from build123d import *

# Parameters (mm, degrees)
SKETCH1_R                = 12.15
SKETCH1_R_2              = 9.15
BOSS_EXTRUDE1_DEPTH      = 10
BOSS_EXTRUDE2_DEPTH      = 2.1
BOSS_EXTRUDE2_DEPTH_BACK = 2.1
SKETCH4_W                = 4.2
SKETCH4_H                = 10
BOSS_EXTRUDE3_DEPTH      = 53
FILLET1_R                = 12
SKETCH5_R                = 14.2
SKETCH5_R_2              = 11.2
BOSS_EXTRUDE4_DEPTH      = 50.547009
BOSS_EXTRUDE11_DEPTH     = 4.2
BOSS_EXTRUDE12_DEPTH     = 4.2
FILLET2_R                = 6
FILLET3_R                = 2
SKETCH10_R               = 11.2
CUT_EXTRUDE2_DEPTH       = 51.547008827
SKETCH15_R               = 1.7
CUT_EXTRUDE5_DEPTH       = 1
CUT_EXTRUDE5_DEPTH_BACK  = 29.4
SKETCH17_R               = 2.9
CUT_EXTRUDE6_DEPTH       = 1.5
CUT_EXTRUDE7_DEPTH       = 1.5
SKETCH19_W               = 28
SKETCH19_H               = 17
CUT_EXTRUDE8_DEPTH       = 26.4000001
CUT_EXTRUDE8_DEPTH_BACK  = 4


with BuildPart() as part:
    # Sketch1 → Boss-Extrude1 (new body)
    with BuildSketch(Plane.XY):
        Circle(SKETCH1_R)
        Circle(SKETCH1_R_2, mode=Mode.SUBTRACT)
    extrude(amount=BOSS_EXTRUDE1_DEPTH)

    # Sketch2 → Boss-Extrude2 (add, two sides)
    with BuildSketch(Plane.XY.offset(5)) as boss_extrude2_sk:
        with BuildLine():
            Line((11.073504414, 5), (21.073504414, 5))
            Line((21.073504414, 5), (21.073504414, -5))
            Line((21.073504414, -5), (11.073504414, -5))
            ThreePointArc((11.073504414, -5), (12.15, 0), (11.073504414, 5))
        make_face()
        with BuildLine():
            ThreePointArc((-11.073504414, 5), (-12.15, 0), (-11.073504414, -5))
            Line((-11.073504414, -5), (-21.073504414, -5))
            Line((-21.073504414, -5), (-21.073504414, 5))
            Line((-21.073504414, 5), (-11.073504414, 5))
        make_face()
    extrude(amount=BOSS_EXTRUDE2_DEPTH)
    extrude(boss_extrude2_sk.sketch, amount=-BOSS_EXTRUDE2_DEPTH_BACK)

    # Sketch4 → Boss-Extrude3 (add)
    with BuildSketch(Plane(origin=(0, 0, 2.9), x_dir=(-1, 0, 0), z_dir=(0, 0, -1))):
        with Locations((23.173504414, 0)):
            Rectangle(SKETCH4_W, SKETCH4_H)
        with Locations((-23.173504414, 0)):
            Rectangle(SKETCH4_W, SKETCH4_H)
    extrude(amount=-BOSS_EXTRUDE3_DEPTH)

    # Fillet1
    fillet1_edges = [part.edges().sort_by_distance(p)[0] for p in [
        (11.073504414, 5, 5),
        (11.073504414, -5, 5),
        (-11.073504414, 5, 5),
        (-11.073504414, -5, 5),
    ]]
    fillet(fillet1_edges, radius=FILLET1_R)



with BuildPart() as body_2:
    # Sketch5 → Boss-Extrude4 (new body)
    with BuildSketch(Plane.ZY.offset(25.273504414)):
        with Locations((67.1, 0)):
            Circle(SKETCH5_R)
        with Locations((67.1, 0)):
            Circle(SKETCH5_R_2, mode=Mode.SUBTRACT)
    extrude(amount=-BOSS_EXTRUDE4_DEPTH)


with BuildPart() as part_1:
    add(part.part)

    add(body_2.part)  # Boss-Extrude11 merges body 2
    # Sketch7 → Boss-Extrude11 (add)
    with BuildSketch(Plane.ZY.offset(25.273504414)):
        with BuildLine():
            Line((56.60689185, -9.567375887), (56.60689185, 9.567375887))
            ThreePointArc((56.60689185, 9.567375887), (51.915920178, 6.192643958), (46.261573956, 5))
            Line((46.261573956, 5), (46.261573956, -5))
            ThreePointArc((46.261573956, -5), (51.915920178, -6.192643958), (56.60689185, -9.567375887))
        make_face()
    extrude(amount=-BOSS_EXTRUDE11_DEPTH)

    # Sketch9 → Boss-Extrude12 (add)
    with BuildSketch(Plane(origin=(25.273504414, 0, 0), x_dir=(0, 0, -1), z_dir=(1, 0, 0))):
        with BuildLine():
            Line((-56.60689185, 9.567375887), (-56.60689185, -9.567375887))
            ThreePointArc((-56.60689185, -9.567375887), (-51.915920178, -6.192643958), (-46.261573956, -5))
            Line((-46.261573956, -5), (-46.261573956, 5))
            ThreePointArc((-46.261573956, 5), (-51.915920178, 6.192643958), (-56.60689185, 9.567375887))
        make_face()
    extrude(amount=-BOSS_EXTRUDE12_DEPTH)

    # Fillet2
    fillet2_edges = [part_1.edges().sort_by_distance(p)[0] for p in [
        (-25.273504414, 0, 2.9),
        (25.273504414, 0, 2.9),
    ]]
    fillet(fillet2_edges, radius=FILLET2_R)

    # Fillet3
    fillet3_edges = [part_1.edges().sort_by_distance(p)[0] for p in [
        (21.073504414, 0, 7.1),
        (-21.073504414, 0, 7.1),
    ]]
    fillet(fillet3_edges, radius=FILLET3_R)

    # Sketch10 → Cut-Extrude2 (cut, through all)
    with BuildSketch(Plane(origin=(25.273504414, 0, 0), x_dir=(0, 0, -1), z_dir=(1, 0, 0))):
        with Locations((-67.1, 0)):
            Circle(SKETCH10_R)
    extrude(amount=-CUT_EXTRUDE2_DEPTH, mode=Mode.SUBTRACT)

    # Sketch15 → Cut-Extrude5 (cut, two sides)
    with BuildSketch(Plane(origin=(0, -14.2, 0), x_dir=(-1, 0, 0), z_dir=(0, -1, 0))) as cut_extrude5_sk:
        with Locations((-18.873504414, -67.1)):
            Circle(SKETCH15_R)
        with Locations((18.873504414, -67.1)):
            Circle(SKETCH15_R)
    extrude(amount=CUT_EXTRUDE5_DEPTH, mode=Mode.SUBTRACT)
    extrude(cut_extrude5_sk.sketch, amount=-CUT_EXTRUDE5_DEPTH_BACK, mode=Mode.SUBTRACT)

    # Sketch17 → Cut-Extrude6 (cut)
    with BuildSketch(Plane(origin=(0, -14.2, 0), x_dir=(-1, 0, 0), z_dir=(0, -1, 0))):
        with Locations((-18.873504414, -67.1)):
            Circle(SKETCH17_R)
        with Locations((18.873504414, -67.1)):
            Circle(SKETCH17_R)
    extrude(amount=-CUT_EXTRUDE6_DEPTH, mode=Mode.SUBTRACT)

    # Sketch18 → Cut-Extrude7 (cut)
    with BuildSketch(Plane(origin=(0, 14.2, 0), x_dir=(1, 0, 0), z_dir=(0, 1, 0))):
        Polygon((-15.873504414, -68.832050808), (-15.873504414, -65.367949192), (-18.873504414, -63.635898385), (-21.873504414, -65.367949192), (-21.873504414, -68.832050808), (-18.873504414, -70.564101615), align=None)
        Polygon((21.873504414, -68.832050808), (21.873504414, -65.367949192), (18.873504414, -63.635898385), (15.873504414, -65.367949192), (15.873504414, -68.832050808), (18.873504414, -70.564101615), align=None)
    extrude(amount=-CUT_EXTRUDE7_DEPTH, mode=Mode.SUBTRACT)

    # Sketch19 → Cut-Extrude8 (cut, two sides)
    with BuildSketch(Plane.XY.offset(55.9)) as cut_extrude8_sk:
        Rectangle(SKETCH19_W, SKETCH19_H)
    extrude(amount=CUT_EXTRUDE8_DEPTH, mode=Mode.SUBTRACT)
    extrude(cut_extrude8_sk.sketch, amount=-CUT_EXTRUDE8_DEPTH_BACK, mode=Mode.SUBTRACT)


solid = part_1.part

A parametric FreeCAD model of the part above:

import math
import FreeCAD as App
import Part
import Sketcher
from FreeCAD import Vector
Q = App.Units.Quantity


def edges_at(feature, points):
    """Names of the edges that pass closest to the given points."""
    edges = feature.Shape.Edges
    near = lambda p: min(range(len(edges)), key=lambda i: edges[i].distToShape(Part.Vertex(*p))[0])
    return sorted({f"Edge{near(p) + 1}" for p in points})

doc = App.newDocument("Part")
body = doc.addObject("PartDesign::Body", "Body")

sketch1 = body.newObject("Sketcher::SketchObject", "Sketch")
sketch1.AttachmentSupport = (doc.getObject("XY_Plane"), [""])
sketch1.MapMode = "FlatFace"
sketch1.addGeometry([
    Part.Circle(Vector(0, 0, 0), Vector(0, 0, 1), 12.15),
    Part.Circle(Vector(0, 0, 0), Vector(0, 0, 1), 9.15),
], False)
sketch1.addConstraint([
    Sketcher.Constraint("Coincident", 0, 3, -1, 1),
    Sketcher.Constraint("Coincident", 1, 3, -1, 1),
    Sketcher.Constraint("Diameter", 0, 24.3),
    Sketcher.Constraint("Diameter", 1, 18.3),
])
pad1 = body.newObject("PartDesign::Pad", "Pad")
pad1.Profile = sketch1
pad1.Length = 10

sketch2 = body.newObject("Sketcher::SketchObject", "Sketch001")
sketch2.AttachmentSupport = (doc.getObject("XY_Plane"), [""])
sketch2.MapMode = "FlatFace"
sketch2.AttachmentOffset = App.Placement(Vector(0, 0, 5), App.Rotation())
sketch2.addGeometry([
    Part.LineSegment(Vector(21.073504, 5, 0), Vector(11.073504, 5, 0)),
    Part.ArcOfCircle(Part.Circle(Vector(0, 0, 0), Vector(0, 0, 1), 12.15), math.radians(-24.30052), math.radians(24.30052)),
    Part.LineSegment(Vector(11.073504, -5, 0), Vector(21.073504, -5, 0)),
    Part.LineSegment(Vector(21.073504, -5, 0), Vector(21.073504, 5, 0)),
    Part.ArcOfCircle(Part.Circle(Vector(0, 0, 0), Vector(0, 0, 1), 12.15), math.radians(155.69948), math.radians(204.30052)),
    Part.LineSegment(Vector(-11.073504, 5, 0), Vector(-21.073504, 5, 0)),
    Part.LineSegment(Vector(-21.073504, 5, 0), Vector(-21.073504, -5, 0)),
    Part.LineSegment(Vector(-21.073504, -5, 0), Vector(-11.073504, -5, 0)),
], False)
sketch2.addConstraint([
    Sketcher.Constraint("Coincident", 0, 2, 1, 2),
    Sketcher.Constraint("Coincident", 1, 1, 2, 1),
    Sketcher.Constraint("Coincident", 2, 2, 3, 1),
    Sketcher.Constraint("Coincident", 3, 2, 0, 1),
    Sketcher.Constraint("Coincident", 4, 1, 5, 1),
    Sketcher.Constraint("Coincident", 5, 2, 6, 1),
    Sketcher.Constraint("Coincident", 6, 2, 7, 1),
    Sketcher.Constraint("Coincident", 7, 2, 4, 2),
    Sketcher.Constraint("Horizontal", 0),
    Sketcher.Constraint("Horizontal", 2),
    Sketcher.Constraint("Vertical", 3),
    Sketcher.Constraint("Horizontal", 5),
    Sketcher.Constraint("Vertical", 6),
    Sketcher.Constraint("Horizontal", 7),
    Sketcher.Constraint("Coincident", 1, 3, -1, 1),
    Sketcher.Constraint("Coincident", 4, 3, -1, 1),
    Sketcher.Constraint("Equal", 1, 4),
    Sketcher.Constraint("Symmetric", 2, 2, 5, 2, -1, 1),
    Sketcher.Constraint("Horizontal", 3, 2, 4, 1),
    Sketcher.Constraint("Horizontal", 2, 2, 6, 2),
    Sketcher.Constraint("Equal", 7, 3),
    Sketcher.Constraint("DistanceX", 0, 2, 0, 1, 10.0),
    Sketcher.Constraint("Radius", 1, 12.15),
])
pad2 = body.newObject("PartDesign::Pad", "Pad001")
pad2.Profile = sketch2
pad2.Type = "TwoLengths"
pad2.Length = 2.1
pad2.Length2 = 2.1

sketch3 = body.newObject("Sketcher::SketchObject", "Sketch002")
sketch3.AttachmentSupport = (doc.getObject("XY_Plane"), [""])
sketch3.MapMode = "FlatFace"
sketch3.AttachmentOffset = App.Placement(Vector(0, 0, 2.9), App.Rotation())
sketch3.addGeometry([
    Part.LineSegment(Vector(-21.073504, 5, 0), Vector(-21.073504, -5, 0)),
    Part.LineSegment(Vector(-21.073504, -5, 0), Vector(-25.273504, -5, 0)),
    Part.LineSegment(Vector(-25.273504, -5, 0), Vector(-25.273504, 5, 0)),
    Part.LineSegment(Vector(-25.273504, 5, 0), Vector(-21.073504, 5, 0)),
    Part.LineSegment(Vector(25.273504, 5, 0), Vector(25.273504, -5, 0)),
    Part.LineSegment(Vector(25.273504, -5, 0), Vector(21.073504, -5, 0)),
    Part.LineSegment(Vector(21.073504, -5, 0), Vector(21.073504, 5, 0)),
    Part.LineSegment(Vector(21.073504, 5, 0), Vector(25.273504, 5, 0)),
], False)
sketch3.addConstraint([
    Sketcher.Constraint("Coincident", 0, 2, 1, 1),
    Sketcher.Constraint("Coincident", 1, 2, 2, 1),
    Sketcher.Constraint("Coincident", 2, 2, 3, 1),
    Sketcher.Constraint("Coincident", 3, 2, 0, 1),
    Sketcher.Constraint("Coincident", 4, 2, 5, 1),
    Sketcher.Constraint("Coincident", 5, 2, 6, 1),
    Sketcher.Constraint("Coincident", 6, 2, 7, 1),
    Sketcher.Constraint("Coincident", 7, 2, 4, 1),
    Sketcher.Constraint("Vertical", 0),
    Sketcher.Constraint("Horizontal", 1),
    Sketcher.Constraint("Vertical", 2),
    Sketcher.Constraint("Horizontal", 3),
    Sketcher.Constraint("Vertical", 4),
    Sketcher.Constraint("Horizontal", 5),
    Sketcher.Constraint("Vertical", 6),
    Sketcher.Constraint("Horizontal", 7),
    Sketcher.Constraint("Symmetric", 2, 2, 4, 2, -1, 1),
    Sketcher.Constraint("Symmetric", 0, 2, 6, 2, -1, 1),
    Sketcher.Constraint("Horizontal", 1, 2, 4, 2),
    Sketcher.Constraint("DistanceY", 0, 2, 0, 1, 10.0),
    Sketcher.Constraint("DistanceX", 1, 2, 1, 1, 4.2),
    Sketcher.Constraint("DistanceX", 0, 2, 4, 2, 46.347009),
])
pad3 = body.newObject("PartDesign::Pad", "Pad002")
pad3.Profile = sketch3
pad3.Length = 53
doc.recompute()

fillet = body.newObject("PartDesign::Fillet", "Fillet")
fillet.Base = (pad3, edges_at(pad3, [
    (11.074, 5, 5),
    (11.074, -5, 5),
    (-11.074, 5, 5),
    (-11.074, -5, 5),
]))
fillet.Radius = 12
body2 = doc.addObject("PartDesign::Body", "Body001")

sketch4 = body2.newObject("Sketcher::SketchObject", "Sketch003")
sketch4.AttachmentSupport = (doc.getObject("YZ_Plane001"), [""])
sketch4.MapMode = "FlatFace"
sketch4.AttachmentOffset = App.Placement(Vector(0, 0, -25.273504), App.Rotation())
sketch4.addGeometry([
    Part.Circle(Vector(0, 67.1, 0), Vector(0, 0, 1), 14.2),
    Part.Circle(Vector(0, 67.1, 0), Vector(0, 0, 1), 11.2),
], False)
sketch4.addConstraint([
    Sketcher.Constraint("Coincident", 1, 3, 0, 3),
    Sketcher.Constraint("PointOnObject", 0, 3, -2),
    Sketcher.Constraint("Diameter", 0, 28.4),
    Sketcher.Constraint("Diameter", 1, 22.4),
    Sketcher.Constraint("DistanceY", -1, 1, 0, 3, 67.1),
])
pad4 = body2.newObject("PartDesign::Pad", "Pad003")
pad4.Profile = sketch4
pad4.Length = 50.547009
doc.recompute()

boolean = body.newObject("PartDesign::Boolean", "Boolean")
boolean.Type = "Fuse"
boolean.addObjects([body2])

sketch5 = body.newObject("Sketcher::SketchObject", "Sketch004")
sketch5.AttachmentSupport = (doc.getObject("YZ_Plane"), [""])
sketch5.MapMode = "FlatFace"
sketch5.AttachmentOffset = App.Placement(Vector(0, 0, -25.273504), App.Rotation())
sketch5.addGeometry([
    Part.LineSegment(Vector(-9.567376, 56.606892, 0), Vector(9.567376, 56.606892, 0)),
    Part.ArcOfCircle(Part.Circle(Vector(19, 46.261574, 0), Vector(0, 0, 1), 14), math.radians(132.357843), math.radians(180)),
    Part.LineSegment(Vector(5, 46.261574, 0), Vector(-5, 46.261574, 0)),
    Part.ArcOfCircle(Part.Circle(Vector(-19, 46.261574, 0), Vector(0, 0, 1), 14), math.radians(0), math.radians(47.642157)),
], False)
sketch5.addConstraint([
    Sketcher.Constraint("Coincident", 0, 2, 1, 1),
    Sketcher.Constraint("Coincident", 1, 2, 2, 1),
    Sketcher.Constraint("Coincident", 2, 2, 3, 1),
    Sketcher.Constraint("Coincident", 3, 2, 0, 1),
    Sketcher.Constraint("Horizontal", 0),
    Sketcher.Constraint("Horizontal", 2),
    Sketcher.Constraint("Equal", 1, 3),
    Sketcher.Constraint("Symmetric", 1, 3, 3, 3, -2),
    Sketcher.Constraint("Horizontal", 3, 3, 1, 2),
    Sketcher.Constraint("Radius", 1, 14.0),
    Sketcher.Constraint("DistanceX", 2, 2, 2, 1, 10.0),
    Sketcher.Constraint("DistanceX", 0, 1, 0, 2, 19.134752),
    Sketcher.Constraint("DistanceY", -1, 1, 0, 2, 56.606892),
])
pad5 = body.newObject("PartDesign::Pad", "Pad004")
pad5.Profile = sketch5
pad5.Length = 4.2

sketch6 = body.newObject("Sketcher::SketchObject", "Sketch005")
sketch6.AttachmentSupport = (doc.getObject("YZ_Plane"), [""])
sketch6.MapMode = "FlatFace"
sketch6.AttachmentOffset = App.Placement(Vector(0, 0, 25.273504), App.Rotation())
sketch6.addGeometry([
    Part.LineSegment(Vector(9.567376, 56.606892, 0), Vector(-9.567376, 56.606892, 0)),
    Part.ArcOfCircle(Part.Circle(Vector(-19, 46.261574, 0), Vector(0, 0, 1), 14), math.radians(0), math.radians(47.642157)),
    Part.LineSegment(Vector(-5, 46.261574, 0), Vector(5, 46.261574, 0)),
    Part.ArcOfCircle(Part.Circle(Vector(19, 46.261574, 0), Vector(0, 0, 1), 14), math.radians(132.357843), math.radians(180)),
], False)
sketch6.addConstraint([
    Sketcher.Constraint("Coincident", 0, 2, 1, 2),
    Sketcher.Constraint("Coincident", 1, 1, 2, 1),
    Sketcher.Constraint("Coincident", 2, 2, 3, 2),
    Sketcher.Constraint("Coincident", 3, 1, 0, 1),
    Sketcher.Constraint("Horizontal", 0),
    Sketcher.Constraint("Horizontal", 2),
    Sketcher.Constraint("Equal", 1, 3),
    Sketcher.Constraint("Symmetric", 1, 3, 3, 3, -2),
    Sketcher.Constraint("Horizontal", 3, 3, 1, 1),
    Sketcher.Constraint("Radius", 1, 14.0),
    Sketcher.Constraint("DistanceX", 2, 1, 2, 2, 10.0),
    Sketcher.Constraint("DistanceX", 0, 2, 0, 1, 19.134752),
    Sketcher.Constraint("DistanceY", -1, 1, 0, 2, 56.606892),
])
pad6 = body.newObject("PartDesign::Pad", "Pad005")
pad6.Profile = sketch6
pad6.Length = 4.2
pad6.Reversed = True
doc.recompute()

fillet2 = body.newObject("PartDesign::Fillet", "Fillet001")
fillet2.Base = (pad6, edges_at(pad6, [(-25.274, 0, 2.9), (25.274, 0, 2.9)]))
fillet2.Radius = 6
doc.recompute()

fillet3 = body.newObject("PartDesign::Fillet", "Fillet002")
fillet3.Base = (fillet2, edges_at(fillet2, [(21.074, 0, 7.1), (-21.074, 0, 7.1)]))
fillet3.Radius = 2

sketch7 = body.newObject("Sketcher::SketchObject", "Sketch006")
sketch7.AttachmentSupport = (doc.getObject("YZ_Plane"), [""])
sketch7.MapMode = "FlatFace"
sketch7.AttachmentOffset = App.Placement(Vector(0, 0, 25.273504), App.Rotation())
sketch7.addGeometry(Part.Circle(Vector(0, 67.1, 0), Vector(0, 0, 1), 11.2), False)
sketch7.addConstraint([
    Sketcher.Constraint("PointOnObject", 0, 3, -2),
    Sketcher.Constraint("Diameter", 0, 22.4),
    Sketcher.Constraint("DistanceY", -1, 1, 0, 3, 67.1),
])
pocket1 = body.newObject("PartDesign::Pocket", "Pocket")
pocket1.Profile = sketch7
pocket1.Type = "ThroughAll"

sketch8 = body.newObject("Sketcher::SketchObject", "Sketch007")
sketch8.AttachmentSupport = (doc.getObject("XZ_Plane"), [""])
sketch8.MapMode = "FlatFace"
sketch8.AttachmentOffset = App.Placement(Vector(0, 0, 14.2), App.Rotation())
sketch8.addGeometry([
    Part.Circle(Vector(18.873504, 67.1, 0), Vector(0, 0, 1), 1.7),
    Part.Circle(Vector(-18.873504, 67.1, 0), Vector(0, 0, 1), 1.7),
], False)
sketch8.addConstraint([
    Sketcher.Constraint("Equal", 0, 1),
    Sketcher.Constraint("Symmetric", 0, 3, 1, 3, -2),
    Sketcher.Constraint("Diameter", 0, 3.4),
    Sketcher.Constraint("DistanceY", -1, 1, 0, 3, 67.1),
    Sketcher.Constraint("DistanceX", 1, 3, 0, 3, 37.747009),
])
pocket2 = body.newObject("PartDesign::Pocket", "Pocket001")
pocket2.Profile = sketch8
pocket2.Type = "ThroughAll"
pocket2.Midplane = True

sketch9 = body.newObject("Sketcher::SketchObject", "Sketch008")
sketch9.AttachmentSupport = (doc.getObject("XZ_Plane"), [""])
sketch9.MapMode = "FlatFace"
sketch9.AttachmentOffset = App.Placement(Vector(0, 0, 14.2), App.Rotation())
sketch9.addGeometry([
    Part.Circle(Vector(18.873504, 67.1, 0), Vector(0, 0, 1), 2.9),
    Part.Circle(Vector(-18.873504, 67.1, 0), Vector(0, 0, 1), 2.9),
], False)
sketch9.addConstraint([
    Sketcher.Constraint("Equal", 0, 1),
    Sketcher.Constraint("Symmetric", 0, 3, 1, 3, -2),
    Sketcher.Constraint("Diameter", 0, 5.8),
    Sketcher.Constraint("DistanceY", -1, 1, 0, 3, 67.1),
    Sketcher.Constraint("DistanceX", 1, 3, 0, 3, 37.747009),
])
pocket3 = body.newObject("PartDesign::Pocket", "Pocket002")
pocket3.Profile = sketch9
pocket3.Length = 1.5

sketch10 = body.newObject("Sketcher::SketchObject", "Sketch009")
sketch10.AttachmentSupport = (doc.getObject("XZ_Plane"), [""])
sketch10.MapMode = "FlatFace"
sketch10.AttachmentOffset = App.Placement(Vector(0, 0, -14.2), App.Rotation())
sketch10.addGeometry([
    Part.LineSegment(Vector(-15.873504, 68.832051, 0), Vector(-15.873504, 65.367949, 0)),
    Part.LineSegment(Vector(-15.873504, 65.367949, 0), Vector(-18.873504, 63.635898, 0)),
    Part.LineSegment(Vector(-18.873504, 63.635898, 0), Vector(-21.873504, 65.367949, 0)),
    Part.LineSegment(Vector(-21.873504, 65.367949, 0), Vector(-21.873504, 68.832051, 0)),
    Part.LineSegment(Vector(-21.873504, 68.832051, 0), Vector(-18.873504, 70.564102, 0)),
    Part.LineSegment(Vector(-18.873504, 70.564102, 0), Vector(-15.873504, 68.832051, 0)),
    Part.LineSegment(Vector(21.873504, 68.832051, 0), Vector(21.873504, 65.367949, 0)),
    Part.LineSegment(Vector(21.873504, 65.367949, 0), Vector(18.873504, 63.635898, 0)),
    Part.LineSegment(Vector(18.873504, 63.635898, 0), Vector(15.873504, 65.367949, 0)),
    Part.LineSegment(Vector(15.873504, 65.367949, 0), Vector(15.873504, 68.832051, 0)),
    Part.LineSegment(Vector(15.873504, 68.832051, 0), Vector(18.873504, 70.564102, 0)),
    Part.LineSegment(Vector(18.873504, 70.564102, 0), Vector(21.873504, 68.832051, 0)),
], False)
sketch10.addConstraint([
    Sketcher.Constraint("Coincident", 0, 2, 1, 1),
    Sketcher.Constraint("Coincident", 1, 2, 2, 1),
    Sketcher.Constraint("Coincident", 2, 2, 3, 1),
    Sketcher.Constraint("Coincident", 3, 2, 4, 1),
    Sketcher.Constraint("Coincident", 4, 2, 5, 1),
    Sketcher.Constraint("Coincident", 5, 2, 0, 1),
    Sketcher.Constraint("Coincident", 6, 2, 7, 1),
    Sketcher.Constraint("Coincident", 7, 2, 8, 1),
    Sketcher.Constraint("Coincident", 8, 2, 9, 1),
    Sketcher.Constraint("Coincident", 9, 2, 10, 1),
    Sketcher.Constraint("Coincident", 10, 2, 11, 1),
    Sketcher.Constraint("Coincident", 11, 2, 6, 1),
    Sketcher.Constraint("Vertical", 0),
    Sketcher.Constraint("Vertical", 3),
    Sketcher.Constraint("Vertical", 6),
    Sketcher.Constraint("Vertical", 9),
    Sketcher.Constraint("Symmetric", 2, 2, 6, 2, -2),
    Sketcher.Constraint("Symmetric", 1, 2, 7, 2, -2),
    Sketcher.Constraint("Symmetric", 0, 2, 8, 2, -2),
    Sketcher.Constraint("Symmetric", 4, 2, 10, 2, -2),
    Sketcher.Constraint("Parallel", 1, 4),
    Sketcher.Constraint("Parallel", 2, 5),
    Sketcher.Constraint("Parallel", 4, 7),
    Sketcher.Constraint("Parallel", 7, 10),
    Sketcher.Constraint("Parallel", 8, 11),
    Sketcher.Constraint("Horizontal", 0, 2, 2, 2),
    Sketcher.Constraint("Horizontal", 3, 2, 5, 2),
    Sketcher.Constraint("Angle", 1, Q("-150 deg")),
    Sketcher.Constraint("DistanceX", 1, 2, 0, 2, 3.0),
    Sketcher.Constraint("DistanceY", 0, 2, 0, 1, 3.464102),
    Sketcher.Constraint("DistanceY", -1, 1, 1, 2, 63.635898),
    Sketcher.Constraint("DistanceX", 0, 2, 6, 2, 37.747009),
])
pocket4 = body.newObject("PartDesign::Pocket", "Pocket003")
pocket4.Profile = sketch10
pocket4.Length = 1.5
pocket4.Reversed = True

sketch11 = body.newObject("Sketcher::SketchObject", "Sketch010")
sketch11.AttachmentSupport = (doc.getObject("XY_Plane"), [""])
sketch11.MapMode = "FlatFace"
sketch11.AttachmentOffset = App.Placement(Vector(0, 0, 55.9), App.Rotation())
sketch11.addGeometry([
    Part.LineSegment(Vector(-14, 8.5, 0), Vector(-14, -8.5, 0)),
    Part.LineSegment(Vector(-14, -8.5, 0), Vector(14, -8.5, 0)),
    Part.LineSegment(Vector(14, -8.5, 0), Vector(14, 8.5, 0)),
    Part.LineSegment(Vector(14, 8.5, 0), Vector(-14, 8.5, 0)),
], False)
sketch11.addConstraint([
    Sketcher.Constraint("Coincident", 0, 2, 1, 1),
    Sketcher.Constraint("Coincident", 1, 2, 2, 1),
    Sketcher.Constraint("Coincident", 2, 2, 3, 1),
    Sketcher.Constraint("Coincident", 3, 2, 0, 1),
    Sketcher.Constraint("Vertical", 0),
    Sketcher.Constraint("Horizontal", 1),
    Sketcher.Constraint("Vertical", 2),
    Sketcher.Constraint("Horizontal", 3),
    Sketcher.Constraint("Symmetric", 0, 2, 2, 2, -1, 1),
    Sketcher.Constraint("DistanceX", 1, 1, 1, 2, 28.0),
    Sketcher.Constraint("DistanceY", 0, 2, 0, 1, 17.0),
])
pocket5 = body.newObject("PartDesign::Pocket", "Pocket004")
pocket5.Profile = sketch11
pocket5.Type = "TwoLengths"
pocket5.Length = 26.4
pocket5.Length2 = 4
pocket5.Reversed = True

doc.recompute()
